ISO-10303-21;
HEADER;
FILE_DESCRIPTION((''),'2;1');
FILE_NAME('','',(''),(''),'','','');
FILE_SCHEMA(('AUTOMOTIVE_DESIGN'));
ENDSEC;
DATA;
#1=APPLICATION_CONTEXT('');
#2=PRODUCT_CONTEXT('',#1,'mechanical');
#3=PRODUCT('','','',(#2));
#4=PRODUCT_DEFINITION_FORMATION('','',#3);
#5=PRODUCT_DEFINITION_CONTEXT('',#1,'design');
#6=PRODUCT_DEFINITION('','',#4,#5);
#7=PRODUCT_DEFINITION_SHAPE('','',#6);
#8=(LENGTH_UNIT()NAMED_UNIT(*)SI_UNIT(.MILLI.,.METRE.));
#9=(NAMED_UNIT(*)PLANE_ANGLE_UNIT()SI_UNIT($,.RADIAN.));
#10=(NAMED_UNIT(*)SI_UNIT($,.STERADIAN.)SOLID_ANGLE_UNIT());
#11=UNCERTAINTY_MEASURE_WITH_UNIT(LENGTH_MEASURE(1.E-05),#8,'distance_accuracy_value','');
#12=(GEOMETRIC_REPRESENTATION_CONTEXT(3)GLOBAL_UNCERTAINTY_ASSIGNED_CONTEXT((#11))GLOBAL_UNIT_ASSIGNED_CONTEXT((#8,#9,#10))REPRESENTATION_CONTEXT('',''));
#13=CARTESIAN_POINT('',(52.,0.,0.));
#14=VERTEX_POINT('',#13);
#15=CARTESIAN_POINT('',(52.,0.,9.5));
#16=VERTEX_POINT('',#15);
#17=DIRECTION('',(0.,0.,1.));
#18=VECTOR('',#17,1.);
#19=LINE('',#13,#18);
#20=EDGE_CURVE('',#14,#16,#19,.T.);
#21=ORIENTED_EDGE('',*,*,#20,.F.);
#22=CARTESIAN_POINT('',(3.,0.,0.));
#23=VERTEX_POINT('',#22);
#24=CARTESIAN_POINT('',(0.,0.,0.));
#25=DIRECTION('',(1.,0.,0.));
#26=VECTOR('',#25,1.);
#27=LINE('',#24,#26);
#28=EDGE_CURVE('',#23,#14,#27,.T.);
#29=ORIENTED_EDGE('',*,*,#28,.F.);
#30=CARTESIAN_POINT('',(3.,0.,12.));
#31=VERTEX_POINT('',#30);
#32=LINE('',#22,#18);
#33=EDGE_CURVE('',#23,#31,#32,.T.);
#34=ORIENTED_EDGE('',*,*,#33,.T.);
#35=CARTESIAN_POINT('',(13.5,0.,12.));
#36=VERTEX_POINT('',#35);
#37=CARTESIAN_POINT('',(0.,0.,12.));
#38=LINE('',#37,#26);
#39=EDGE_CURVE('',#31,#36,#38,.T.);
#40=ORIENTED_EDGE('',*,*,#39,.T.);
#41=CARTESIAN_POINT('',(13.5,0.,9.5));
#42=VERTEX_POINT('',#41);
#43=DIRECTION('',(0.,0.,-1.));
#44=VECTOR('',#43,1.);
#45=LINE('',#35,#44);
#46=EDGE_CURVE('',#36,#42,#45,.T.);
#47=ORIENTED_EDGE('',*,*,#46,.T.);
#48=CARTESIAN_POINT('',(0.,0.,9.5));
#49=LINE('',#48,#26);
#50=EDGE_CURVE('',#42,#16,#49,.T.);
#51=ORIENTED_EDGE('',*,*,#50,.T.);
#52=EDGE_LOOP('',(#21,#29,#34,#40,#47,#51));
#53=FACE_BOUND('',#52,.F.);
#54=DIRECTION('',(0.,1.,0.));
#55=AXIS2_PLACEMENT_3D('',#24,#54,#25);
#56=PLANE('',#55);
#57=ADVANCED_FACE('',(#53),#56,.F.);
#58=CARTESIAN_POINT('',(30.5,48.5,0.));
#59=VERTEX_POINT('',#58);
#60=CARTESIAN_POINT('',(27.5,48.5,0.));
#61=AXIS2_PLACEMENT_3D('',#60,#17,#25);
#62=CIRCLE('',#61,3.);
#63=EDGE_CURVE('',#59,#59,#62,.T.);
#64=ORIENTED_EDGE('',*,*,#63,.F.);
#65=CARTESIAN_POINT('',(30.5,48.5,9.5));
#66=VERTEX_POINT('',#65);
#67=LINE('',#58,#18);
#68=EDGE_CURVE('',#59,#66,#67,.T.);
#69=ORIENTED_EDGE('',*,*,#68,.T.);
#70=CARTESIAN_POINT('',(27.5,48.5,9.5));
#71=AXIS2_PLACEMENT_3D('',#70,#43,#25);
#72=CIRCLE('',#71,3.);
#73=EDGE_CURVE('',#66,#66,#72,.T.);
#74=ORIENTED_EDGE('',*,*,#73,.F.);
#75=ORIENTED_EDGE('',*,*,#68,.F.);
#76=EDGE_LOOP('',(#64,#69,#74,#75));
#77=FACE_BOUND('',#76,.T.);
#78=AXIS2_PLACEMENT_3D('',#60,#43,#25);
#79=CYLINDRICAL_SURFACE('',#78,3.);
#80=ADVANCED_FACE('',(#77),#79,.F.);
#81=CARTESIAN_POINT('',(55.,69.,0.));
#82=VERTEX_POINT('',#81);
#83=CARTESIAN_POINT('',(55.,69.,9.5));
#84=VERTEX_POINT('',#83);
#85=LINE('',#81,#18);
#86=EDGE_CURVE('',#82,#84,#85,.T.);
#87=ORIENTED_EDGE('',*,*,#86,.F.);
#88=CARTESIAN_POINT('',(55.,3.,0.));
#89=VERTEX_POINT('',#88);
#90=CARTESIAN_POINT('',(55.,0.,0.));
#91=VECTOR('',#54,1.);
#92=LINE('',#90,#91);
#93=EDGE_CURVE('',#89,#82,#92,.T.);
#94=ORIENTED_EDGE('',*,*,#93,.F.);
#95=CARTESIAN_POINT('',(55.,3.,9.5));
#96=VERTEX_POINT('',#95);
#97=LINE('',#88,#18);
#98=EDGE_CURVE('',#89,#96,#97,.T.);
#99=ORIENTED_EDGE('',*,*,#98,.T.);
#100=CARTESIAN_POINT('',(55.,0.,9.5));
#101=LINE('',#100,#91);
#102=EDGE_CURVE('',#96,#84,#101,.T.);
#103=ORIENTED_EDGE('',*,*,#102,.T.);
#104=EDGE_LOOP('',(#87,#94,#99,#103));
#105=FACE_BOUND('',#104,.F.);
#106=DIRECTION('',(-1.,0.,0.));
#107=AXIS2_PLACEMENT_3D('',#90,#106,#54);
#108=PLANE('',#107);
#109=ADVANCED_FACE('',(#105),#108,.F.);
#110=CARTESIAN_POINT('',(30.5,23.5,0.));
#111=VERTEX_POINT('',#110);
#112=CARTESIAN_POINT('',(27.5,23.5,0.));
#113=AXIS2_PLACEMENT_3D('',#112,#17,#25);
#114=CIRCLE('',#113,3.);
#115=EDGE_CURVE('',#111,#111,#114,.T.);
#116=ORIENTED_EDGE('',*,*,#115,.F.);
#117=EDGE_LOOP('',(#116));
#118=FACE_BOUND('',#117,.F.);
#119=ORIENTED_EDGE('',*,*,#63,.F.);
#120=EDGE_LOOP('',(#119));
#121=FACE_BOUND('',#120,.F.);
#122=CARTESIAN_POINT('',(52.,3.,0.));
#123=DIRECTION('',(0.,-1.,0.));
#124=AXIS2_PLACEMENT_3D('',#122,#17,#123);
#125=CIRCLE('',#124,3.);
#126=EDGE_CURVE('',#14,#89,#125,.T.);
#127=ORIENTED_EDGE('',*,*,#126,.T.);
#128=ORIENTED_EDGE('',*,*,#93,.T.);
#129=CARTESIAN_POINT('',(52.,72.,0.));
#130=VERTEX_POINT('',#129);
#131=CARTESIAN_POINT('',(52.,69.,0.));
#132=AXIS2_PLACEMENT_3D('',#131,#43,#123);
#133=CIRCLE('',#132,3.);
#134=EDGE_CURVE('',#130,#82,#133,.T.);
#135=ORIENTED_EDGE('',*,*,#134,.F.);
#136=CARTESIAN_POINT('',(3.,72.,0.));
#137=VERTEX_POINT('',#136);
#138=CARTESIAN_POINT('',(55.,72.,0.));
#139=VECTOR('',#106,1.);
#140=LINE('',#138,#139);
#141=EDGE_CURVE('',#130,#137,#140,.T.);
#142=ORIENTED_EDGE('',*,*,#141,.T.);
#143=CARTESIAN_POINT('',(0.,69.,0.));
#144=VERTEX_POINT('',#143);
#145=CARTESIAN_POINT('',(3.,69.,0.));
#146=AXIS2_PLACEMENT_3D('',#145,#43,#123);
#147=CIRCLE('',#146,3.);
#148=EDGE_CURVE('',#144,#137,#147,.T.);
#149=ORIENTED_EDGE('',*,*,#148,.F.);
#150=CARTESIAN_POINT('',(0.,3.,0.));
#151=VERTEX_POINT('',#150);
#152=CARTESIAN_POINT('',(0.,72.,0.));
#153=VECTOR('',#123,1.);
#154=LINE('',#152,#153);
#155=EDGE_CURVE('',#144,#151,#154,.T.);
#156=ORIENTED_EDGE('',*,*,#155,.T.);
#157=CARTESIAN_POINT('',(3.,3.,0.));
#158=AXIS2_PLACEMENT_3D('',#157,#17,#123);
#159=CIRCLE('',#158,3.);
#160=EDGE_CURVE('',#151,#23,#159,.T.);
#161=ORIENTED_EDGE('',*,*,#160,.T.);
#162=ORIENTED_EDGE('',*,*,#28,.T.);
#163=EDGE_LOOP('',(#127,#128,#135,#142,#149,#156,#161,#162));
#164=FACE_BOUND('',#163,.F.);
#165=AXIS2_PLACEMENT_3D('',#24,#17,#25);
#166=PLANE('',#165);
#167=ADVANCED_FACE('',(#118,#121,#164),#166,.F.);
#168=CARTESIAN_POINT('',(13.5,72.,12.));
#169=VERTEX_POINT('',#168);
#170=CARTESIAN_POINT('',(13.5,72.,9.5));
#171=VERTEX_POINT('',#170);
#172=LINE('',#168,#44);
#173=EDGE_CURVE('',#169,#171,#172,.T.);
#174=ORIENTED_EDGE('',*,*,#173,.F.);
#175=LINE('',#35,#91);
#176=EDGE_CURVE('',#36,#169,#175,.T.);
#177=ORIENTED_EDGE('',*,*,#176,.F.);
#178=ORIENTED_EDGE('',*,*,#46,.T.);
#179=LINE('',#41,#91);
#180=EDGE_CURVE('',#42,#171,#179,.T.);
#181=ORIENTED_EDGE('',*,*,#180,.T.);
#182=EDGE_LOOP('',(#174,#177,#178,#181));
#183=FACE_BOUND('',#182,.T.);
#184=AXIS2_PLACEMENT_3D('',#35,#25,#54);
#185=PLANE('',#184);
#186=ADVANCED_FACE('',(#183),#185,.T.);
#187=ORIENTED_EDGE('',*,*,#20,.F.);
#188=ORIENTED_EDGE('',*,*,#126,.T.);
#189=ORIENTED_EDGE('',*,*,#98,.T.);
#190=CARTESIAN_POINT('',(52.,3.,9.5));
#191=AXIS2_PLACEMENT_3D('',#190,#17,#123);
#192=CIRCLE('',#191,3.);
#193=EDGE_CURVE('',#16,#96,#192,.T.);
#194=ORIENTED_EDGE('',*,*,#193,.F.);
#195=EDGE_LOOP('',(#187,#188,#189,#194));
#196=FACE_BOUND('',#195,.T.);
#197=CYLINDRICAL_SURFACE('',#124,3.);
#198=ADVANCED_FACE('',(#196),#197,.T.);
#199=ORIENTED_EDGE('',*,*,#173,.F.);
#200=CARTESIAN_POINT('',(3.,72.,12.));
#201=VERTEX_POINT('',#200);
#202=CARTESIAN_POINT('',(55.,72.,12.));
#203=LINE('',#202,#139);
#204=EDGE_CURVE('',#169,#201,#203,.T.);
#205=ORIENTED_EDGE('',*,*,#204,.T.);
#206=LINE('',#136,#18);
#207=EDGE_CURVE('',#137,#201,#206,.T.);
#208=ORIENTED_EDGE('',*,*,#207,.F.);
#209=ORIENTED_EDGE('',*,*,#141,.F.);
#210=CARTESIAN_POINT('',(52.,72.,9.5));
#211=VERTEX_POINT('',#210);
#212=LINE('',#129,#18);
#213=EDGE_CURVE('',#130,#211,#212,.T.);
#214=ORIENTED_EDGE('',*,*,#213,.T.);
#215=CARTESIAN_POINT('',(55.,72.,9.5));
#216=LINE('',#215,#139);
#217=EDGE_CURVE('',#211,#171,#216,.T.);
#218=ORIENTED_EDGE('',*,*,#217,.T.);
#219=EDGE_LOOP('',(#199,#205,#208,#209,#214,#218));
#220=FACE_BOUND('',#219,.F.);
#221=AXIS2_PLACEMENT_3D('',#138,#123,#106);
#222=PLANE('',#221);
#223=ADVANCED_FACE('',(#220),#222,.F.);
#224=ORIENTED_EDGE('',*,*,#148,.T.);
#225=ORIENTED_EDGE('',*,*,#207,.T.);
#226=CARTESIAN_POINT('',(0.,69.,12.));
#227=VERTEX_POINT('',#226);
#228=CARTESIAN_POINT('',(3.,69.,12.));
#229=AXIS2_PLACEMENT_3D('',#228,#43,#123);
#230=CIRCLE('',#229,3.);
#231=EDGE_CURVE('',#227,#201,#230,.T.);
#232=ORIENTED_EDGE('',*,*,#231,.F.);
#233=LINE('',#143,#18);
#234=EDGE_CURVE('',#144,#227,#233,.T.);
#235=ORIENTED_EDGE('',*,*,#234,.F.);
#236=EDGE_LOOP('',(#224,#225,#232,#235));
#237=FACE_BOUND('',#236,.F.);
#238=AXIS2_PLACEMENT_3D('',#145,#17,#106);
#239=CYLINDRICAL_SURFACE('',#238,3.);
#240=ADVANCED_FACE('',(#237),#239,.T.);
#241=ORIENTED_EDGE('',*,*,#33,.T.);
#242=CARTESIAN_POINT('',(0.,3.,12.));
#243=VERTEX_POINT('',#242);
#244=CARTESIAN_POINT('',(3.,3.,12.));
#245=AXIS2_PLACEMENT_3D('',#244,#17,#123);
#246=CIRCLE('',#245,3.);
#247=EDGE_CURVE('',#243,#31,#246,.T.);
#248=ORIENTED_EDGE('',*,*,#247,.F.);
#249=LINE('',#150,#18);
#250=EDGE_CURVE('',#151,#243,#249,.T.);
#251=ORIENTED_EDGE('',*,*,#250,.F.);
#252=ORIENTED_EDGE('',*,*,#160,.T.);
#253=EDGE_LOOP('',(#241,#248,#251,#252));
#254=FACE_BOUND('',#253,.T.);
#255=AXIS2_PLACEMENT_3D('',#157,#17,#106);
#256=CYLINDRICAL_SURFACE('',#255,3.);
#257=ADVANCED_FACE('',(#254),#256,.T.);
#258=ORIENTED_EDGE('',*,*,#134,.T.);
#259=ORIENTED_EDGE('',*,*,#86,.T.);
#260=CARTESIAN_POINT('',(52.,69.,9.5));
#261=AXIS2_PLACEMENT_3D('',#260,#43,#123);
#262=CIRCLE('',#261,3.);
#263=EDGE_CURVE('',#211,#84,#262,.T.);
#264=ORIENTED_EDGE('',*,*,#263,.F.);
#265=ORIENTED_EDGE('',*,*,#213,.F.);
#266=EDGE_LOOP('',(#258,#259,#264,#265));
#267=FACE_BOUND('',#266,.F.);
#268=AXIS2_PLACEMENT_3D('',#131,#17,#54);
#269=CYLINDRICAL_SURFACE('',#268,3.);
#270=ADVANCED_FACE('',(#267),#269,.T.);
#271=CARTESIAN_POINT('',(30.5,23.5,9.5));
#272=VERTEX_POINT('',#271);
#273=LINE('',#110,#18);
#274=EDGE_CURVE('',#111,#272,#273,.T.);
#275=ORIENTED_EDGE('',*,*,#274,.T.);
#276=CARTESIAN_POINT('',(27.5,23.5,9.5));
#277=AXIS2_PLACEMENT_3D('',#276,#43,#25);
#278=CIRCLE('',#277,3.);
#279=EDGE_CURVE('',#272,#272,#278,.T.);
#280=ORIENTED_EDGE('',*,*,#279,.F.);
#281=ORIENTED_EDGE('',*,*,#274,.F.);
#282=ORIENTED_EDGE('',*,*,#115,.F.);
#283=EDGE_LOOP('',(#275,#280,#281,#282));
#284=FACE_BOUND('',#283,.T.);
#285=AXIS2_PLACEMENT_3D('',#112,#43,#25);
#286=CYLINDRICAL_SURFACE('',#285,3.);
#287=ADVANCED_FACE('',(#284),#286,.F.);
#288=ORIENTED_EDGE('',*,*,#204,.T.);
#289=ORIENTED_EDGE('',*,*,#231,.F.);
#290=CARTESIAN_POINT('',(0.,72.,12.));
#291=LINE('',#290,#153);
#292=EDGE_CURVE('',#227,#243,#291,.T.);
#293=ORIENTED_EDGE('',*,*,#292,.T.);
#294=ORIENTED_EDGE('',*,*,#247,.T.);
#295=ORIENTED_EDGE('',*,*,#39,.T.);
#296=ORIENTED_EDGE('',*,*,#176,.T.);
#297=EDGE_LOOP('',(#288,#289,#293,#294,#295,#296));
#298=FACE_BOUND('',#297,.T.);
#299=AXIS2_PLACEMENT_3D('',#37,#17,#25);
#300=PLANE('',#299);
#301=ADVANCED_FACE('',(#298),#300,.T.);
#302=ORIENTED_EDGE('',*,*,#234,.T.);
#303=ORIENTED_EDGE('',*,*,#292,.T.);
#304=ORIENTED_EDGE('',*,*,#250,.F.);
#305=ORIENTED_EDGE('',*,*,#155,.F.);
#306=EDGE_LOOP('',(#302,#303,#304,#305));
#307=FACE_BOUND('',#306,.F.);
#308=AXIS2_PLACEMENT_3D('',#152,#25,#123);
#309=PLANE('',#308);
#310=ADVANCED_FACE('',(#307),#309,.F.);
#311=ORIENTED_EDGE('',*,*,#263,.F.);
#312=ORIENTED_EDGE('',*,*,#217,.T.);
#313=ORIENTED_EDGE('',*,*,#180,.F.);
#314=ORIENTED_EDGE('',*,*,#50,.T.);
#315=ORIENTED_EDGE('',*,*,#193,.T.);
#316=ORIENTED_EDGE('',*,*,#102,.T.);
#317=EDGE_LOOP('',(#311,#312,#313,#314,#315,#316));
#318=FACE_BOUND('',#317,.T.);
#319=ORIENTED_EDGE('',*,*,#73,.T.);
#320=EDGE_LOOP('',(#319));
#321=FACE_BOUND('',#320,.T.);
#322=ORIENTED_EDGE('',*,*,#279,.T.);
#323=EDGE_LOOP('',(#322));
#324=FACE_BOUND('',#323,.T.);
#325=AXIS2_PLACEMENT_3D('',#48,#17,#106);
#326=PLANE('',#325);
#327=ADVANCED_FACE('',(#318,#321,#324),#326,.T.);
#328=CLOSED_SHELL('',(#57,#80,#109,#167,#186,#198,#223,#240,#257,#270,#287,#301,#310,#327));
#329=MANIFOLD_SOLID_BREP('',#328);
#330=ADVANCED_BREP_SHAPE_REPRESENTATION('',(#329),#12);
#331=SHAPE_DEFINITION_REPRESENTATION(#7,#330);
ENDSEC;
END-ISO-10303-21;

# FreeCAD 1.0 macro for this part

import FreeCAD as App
import Part
import Sketcher
Q = App.Units.Quantity


def edges_at(feature, points):
    """Names of the edges that pass closest to the given points."""
    edges = feature.Shape.Edges
    near = lambda p: min(range(len(edges)), key=lambda i: edges[i].distToShape(Part.Vertex(*p))[0])
    return sorted({f"Edge{near(p) + 1}" for p in points})


def add_polygon(sketch, points):
    """Adds a closed chain of lines whose ends are joined by coincident constraints."""
    first, n = sketch.GeometryCount, len(points)
    for a, b in zip(points, points[1:] + points[:1]):
        sketch.addGeometry(Part.LineSegment(App.Vector(*a, 0), App.Vector(*b, 0)), False)
    for i in range(n):
        sketch.addConstraint(Sketcher.Constraint("Coincident", first + i, 2, first + (i + 1) % n, 1))

doc = App.newDocument("Part")
body = doc.addObject("PartDesign::Body", "Body")

sketch1 = body.newObject("Sketcher::SketchObject", "Sketch")
sketch1.AttachmentSupport = (doc.getObject("XY_Plane"), [""])
sketch1.MapMode = "FlatFace"
add_polygon(sketch1, [(0, 72), (0, 0), (55, 0), (55, 72)])
sketch1.addGeometry(Part.Circle(App.Vector(27.5, 23.5, 0), App.Vector(0, 0, 1), 3), False)
sketch1.addGeometry(Part.Circle(App.Vector(27.5, 48.5, 0), App.Vector(0, 0, 1), 3), False)
sketch1.addConstraint([
    Sketcher.Constraint("Vertical", 0),
    Sketcher.Constraint("Horizontal", 1),
    Sketcher.Constraint("Vertical", 2),
    Sketcher.Constraint("Horizontal", 3),
    Sketcher.Constraint("Coincident", 0, 2, -1, 1),
    Sketcher.Constraint("Equal", 4, 5),
    Sketcher.Constraint("Vertical", 4, 3, 5, 3),
    Sketcher.Constraint("Diameter", 4, Q("6 mm")),
    Sketcher.Constraint("DistanceX", 1, 1, 1, 2, Q("55 mm")),
    Sketcher.Constraint("DistanceY", 0, 2, 0, 1, Q("72 mm")),
    Sketcher.Constraint("DistanceY", 4, 3, 5, 3, Q("25 mm")),
    Sketcher.Constraint("DistanceX", -1, 1, 4, 3, Q("27.5 mm")),
    Sketcher.Constraint("DistanceY", -1, 1, 4, 3, Q("23.5 mm")),
])
pad1 = body.newObject("PartDesign::Pad", "Pad")
pad1.Profile = sketch1
pad1.Length = 12

sketch2 = body.newObject("Sketcher::SketchObject", "Sketch001")
sketch2.AttachmentSupport = (doc.getObject("XY_Plane"), [""])
sketch2.MapMode = "FlatFace"
sketch2.AttachmentOffset = App.Placement(App.Vector(0, 0, 12), App.Rotation())
add_polygon(sketch2, [(55, 72), (14, 72), (14, 0), (55, 0)])
sketch2.addConstraint([
    Sketcher.Constraint("Horizontal", 0),
    Sketcher.Constraint("Vertical", 1),
    Sketcher.Constraint("Horizontal", 2),
    Sketcher.Constraint("Vertical", 3),
    Sketcher.Constraint("PointOnObject", 1, 2, -1),
    Sketcher.Constraint("DistanceX", -1, 1, 0, 2, Q("13.5 mm")),
    Sketcher.Constraint("DistanceY", 1, 2, 1, 1, Q("72 mm")),
    Sketcher.Constraint("DistanceX", 0, 2, 0, 1, Q("41.5 mm")),
])
pocket1 = body.newObject("PartDesign::Pocket", "Pocket")
pocket1.Profile = sketch2
pocket1.Length = 2.5
doc.recompute()

fillet = body.newObject("PartDesign::Fillet", "Fillet")
fillet.Base = (pocket1, edges_at(pocket1, [
    (0, 0, 6),
    (55, 0, 4.75),
    (55, 72, 4.75),
    (0, 72, 6),
]))
fillet.Radius = 3

doc.recompute()
